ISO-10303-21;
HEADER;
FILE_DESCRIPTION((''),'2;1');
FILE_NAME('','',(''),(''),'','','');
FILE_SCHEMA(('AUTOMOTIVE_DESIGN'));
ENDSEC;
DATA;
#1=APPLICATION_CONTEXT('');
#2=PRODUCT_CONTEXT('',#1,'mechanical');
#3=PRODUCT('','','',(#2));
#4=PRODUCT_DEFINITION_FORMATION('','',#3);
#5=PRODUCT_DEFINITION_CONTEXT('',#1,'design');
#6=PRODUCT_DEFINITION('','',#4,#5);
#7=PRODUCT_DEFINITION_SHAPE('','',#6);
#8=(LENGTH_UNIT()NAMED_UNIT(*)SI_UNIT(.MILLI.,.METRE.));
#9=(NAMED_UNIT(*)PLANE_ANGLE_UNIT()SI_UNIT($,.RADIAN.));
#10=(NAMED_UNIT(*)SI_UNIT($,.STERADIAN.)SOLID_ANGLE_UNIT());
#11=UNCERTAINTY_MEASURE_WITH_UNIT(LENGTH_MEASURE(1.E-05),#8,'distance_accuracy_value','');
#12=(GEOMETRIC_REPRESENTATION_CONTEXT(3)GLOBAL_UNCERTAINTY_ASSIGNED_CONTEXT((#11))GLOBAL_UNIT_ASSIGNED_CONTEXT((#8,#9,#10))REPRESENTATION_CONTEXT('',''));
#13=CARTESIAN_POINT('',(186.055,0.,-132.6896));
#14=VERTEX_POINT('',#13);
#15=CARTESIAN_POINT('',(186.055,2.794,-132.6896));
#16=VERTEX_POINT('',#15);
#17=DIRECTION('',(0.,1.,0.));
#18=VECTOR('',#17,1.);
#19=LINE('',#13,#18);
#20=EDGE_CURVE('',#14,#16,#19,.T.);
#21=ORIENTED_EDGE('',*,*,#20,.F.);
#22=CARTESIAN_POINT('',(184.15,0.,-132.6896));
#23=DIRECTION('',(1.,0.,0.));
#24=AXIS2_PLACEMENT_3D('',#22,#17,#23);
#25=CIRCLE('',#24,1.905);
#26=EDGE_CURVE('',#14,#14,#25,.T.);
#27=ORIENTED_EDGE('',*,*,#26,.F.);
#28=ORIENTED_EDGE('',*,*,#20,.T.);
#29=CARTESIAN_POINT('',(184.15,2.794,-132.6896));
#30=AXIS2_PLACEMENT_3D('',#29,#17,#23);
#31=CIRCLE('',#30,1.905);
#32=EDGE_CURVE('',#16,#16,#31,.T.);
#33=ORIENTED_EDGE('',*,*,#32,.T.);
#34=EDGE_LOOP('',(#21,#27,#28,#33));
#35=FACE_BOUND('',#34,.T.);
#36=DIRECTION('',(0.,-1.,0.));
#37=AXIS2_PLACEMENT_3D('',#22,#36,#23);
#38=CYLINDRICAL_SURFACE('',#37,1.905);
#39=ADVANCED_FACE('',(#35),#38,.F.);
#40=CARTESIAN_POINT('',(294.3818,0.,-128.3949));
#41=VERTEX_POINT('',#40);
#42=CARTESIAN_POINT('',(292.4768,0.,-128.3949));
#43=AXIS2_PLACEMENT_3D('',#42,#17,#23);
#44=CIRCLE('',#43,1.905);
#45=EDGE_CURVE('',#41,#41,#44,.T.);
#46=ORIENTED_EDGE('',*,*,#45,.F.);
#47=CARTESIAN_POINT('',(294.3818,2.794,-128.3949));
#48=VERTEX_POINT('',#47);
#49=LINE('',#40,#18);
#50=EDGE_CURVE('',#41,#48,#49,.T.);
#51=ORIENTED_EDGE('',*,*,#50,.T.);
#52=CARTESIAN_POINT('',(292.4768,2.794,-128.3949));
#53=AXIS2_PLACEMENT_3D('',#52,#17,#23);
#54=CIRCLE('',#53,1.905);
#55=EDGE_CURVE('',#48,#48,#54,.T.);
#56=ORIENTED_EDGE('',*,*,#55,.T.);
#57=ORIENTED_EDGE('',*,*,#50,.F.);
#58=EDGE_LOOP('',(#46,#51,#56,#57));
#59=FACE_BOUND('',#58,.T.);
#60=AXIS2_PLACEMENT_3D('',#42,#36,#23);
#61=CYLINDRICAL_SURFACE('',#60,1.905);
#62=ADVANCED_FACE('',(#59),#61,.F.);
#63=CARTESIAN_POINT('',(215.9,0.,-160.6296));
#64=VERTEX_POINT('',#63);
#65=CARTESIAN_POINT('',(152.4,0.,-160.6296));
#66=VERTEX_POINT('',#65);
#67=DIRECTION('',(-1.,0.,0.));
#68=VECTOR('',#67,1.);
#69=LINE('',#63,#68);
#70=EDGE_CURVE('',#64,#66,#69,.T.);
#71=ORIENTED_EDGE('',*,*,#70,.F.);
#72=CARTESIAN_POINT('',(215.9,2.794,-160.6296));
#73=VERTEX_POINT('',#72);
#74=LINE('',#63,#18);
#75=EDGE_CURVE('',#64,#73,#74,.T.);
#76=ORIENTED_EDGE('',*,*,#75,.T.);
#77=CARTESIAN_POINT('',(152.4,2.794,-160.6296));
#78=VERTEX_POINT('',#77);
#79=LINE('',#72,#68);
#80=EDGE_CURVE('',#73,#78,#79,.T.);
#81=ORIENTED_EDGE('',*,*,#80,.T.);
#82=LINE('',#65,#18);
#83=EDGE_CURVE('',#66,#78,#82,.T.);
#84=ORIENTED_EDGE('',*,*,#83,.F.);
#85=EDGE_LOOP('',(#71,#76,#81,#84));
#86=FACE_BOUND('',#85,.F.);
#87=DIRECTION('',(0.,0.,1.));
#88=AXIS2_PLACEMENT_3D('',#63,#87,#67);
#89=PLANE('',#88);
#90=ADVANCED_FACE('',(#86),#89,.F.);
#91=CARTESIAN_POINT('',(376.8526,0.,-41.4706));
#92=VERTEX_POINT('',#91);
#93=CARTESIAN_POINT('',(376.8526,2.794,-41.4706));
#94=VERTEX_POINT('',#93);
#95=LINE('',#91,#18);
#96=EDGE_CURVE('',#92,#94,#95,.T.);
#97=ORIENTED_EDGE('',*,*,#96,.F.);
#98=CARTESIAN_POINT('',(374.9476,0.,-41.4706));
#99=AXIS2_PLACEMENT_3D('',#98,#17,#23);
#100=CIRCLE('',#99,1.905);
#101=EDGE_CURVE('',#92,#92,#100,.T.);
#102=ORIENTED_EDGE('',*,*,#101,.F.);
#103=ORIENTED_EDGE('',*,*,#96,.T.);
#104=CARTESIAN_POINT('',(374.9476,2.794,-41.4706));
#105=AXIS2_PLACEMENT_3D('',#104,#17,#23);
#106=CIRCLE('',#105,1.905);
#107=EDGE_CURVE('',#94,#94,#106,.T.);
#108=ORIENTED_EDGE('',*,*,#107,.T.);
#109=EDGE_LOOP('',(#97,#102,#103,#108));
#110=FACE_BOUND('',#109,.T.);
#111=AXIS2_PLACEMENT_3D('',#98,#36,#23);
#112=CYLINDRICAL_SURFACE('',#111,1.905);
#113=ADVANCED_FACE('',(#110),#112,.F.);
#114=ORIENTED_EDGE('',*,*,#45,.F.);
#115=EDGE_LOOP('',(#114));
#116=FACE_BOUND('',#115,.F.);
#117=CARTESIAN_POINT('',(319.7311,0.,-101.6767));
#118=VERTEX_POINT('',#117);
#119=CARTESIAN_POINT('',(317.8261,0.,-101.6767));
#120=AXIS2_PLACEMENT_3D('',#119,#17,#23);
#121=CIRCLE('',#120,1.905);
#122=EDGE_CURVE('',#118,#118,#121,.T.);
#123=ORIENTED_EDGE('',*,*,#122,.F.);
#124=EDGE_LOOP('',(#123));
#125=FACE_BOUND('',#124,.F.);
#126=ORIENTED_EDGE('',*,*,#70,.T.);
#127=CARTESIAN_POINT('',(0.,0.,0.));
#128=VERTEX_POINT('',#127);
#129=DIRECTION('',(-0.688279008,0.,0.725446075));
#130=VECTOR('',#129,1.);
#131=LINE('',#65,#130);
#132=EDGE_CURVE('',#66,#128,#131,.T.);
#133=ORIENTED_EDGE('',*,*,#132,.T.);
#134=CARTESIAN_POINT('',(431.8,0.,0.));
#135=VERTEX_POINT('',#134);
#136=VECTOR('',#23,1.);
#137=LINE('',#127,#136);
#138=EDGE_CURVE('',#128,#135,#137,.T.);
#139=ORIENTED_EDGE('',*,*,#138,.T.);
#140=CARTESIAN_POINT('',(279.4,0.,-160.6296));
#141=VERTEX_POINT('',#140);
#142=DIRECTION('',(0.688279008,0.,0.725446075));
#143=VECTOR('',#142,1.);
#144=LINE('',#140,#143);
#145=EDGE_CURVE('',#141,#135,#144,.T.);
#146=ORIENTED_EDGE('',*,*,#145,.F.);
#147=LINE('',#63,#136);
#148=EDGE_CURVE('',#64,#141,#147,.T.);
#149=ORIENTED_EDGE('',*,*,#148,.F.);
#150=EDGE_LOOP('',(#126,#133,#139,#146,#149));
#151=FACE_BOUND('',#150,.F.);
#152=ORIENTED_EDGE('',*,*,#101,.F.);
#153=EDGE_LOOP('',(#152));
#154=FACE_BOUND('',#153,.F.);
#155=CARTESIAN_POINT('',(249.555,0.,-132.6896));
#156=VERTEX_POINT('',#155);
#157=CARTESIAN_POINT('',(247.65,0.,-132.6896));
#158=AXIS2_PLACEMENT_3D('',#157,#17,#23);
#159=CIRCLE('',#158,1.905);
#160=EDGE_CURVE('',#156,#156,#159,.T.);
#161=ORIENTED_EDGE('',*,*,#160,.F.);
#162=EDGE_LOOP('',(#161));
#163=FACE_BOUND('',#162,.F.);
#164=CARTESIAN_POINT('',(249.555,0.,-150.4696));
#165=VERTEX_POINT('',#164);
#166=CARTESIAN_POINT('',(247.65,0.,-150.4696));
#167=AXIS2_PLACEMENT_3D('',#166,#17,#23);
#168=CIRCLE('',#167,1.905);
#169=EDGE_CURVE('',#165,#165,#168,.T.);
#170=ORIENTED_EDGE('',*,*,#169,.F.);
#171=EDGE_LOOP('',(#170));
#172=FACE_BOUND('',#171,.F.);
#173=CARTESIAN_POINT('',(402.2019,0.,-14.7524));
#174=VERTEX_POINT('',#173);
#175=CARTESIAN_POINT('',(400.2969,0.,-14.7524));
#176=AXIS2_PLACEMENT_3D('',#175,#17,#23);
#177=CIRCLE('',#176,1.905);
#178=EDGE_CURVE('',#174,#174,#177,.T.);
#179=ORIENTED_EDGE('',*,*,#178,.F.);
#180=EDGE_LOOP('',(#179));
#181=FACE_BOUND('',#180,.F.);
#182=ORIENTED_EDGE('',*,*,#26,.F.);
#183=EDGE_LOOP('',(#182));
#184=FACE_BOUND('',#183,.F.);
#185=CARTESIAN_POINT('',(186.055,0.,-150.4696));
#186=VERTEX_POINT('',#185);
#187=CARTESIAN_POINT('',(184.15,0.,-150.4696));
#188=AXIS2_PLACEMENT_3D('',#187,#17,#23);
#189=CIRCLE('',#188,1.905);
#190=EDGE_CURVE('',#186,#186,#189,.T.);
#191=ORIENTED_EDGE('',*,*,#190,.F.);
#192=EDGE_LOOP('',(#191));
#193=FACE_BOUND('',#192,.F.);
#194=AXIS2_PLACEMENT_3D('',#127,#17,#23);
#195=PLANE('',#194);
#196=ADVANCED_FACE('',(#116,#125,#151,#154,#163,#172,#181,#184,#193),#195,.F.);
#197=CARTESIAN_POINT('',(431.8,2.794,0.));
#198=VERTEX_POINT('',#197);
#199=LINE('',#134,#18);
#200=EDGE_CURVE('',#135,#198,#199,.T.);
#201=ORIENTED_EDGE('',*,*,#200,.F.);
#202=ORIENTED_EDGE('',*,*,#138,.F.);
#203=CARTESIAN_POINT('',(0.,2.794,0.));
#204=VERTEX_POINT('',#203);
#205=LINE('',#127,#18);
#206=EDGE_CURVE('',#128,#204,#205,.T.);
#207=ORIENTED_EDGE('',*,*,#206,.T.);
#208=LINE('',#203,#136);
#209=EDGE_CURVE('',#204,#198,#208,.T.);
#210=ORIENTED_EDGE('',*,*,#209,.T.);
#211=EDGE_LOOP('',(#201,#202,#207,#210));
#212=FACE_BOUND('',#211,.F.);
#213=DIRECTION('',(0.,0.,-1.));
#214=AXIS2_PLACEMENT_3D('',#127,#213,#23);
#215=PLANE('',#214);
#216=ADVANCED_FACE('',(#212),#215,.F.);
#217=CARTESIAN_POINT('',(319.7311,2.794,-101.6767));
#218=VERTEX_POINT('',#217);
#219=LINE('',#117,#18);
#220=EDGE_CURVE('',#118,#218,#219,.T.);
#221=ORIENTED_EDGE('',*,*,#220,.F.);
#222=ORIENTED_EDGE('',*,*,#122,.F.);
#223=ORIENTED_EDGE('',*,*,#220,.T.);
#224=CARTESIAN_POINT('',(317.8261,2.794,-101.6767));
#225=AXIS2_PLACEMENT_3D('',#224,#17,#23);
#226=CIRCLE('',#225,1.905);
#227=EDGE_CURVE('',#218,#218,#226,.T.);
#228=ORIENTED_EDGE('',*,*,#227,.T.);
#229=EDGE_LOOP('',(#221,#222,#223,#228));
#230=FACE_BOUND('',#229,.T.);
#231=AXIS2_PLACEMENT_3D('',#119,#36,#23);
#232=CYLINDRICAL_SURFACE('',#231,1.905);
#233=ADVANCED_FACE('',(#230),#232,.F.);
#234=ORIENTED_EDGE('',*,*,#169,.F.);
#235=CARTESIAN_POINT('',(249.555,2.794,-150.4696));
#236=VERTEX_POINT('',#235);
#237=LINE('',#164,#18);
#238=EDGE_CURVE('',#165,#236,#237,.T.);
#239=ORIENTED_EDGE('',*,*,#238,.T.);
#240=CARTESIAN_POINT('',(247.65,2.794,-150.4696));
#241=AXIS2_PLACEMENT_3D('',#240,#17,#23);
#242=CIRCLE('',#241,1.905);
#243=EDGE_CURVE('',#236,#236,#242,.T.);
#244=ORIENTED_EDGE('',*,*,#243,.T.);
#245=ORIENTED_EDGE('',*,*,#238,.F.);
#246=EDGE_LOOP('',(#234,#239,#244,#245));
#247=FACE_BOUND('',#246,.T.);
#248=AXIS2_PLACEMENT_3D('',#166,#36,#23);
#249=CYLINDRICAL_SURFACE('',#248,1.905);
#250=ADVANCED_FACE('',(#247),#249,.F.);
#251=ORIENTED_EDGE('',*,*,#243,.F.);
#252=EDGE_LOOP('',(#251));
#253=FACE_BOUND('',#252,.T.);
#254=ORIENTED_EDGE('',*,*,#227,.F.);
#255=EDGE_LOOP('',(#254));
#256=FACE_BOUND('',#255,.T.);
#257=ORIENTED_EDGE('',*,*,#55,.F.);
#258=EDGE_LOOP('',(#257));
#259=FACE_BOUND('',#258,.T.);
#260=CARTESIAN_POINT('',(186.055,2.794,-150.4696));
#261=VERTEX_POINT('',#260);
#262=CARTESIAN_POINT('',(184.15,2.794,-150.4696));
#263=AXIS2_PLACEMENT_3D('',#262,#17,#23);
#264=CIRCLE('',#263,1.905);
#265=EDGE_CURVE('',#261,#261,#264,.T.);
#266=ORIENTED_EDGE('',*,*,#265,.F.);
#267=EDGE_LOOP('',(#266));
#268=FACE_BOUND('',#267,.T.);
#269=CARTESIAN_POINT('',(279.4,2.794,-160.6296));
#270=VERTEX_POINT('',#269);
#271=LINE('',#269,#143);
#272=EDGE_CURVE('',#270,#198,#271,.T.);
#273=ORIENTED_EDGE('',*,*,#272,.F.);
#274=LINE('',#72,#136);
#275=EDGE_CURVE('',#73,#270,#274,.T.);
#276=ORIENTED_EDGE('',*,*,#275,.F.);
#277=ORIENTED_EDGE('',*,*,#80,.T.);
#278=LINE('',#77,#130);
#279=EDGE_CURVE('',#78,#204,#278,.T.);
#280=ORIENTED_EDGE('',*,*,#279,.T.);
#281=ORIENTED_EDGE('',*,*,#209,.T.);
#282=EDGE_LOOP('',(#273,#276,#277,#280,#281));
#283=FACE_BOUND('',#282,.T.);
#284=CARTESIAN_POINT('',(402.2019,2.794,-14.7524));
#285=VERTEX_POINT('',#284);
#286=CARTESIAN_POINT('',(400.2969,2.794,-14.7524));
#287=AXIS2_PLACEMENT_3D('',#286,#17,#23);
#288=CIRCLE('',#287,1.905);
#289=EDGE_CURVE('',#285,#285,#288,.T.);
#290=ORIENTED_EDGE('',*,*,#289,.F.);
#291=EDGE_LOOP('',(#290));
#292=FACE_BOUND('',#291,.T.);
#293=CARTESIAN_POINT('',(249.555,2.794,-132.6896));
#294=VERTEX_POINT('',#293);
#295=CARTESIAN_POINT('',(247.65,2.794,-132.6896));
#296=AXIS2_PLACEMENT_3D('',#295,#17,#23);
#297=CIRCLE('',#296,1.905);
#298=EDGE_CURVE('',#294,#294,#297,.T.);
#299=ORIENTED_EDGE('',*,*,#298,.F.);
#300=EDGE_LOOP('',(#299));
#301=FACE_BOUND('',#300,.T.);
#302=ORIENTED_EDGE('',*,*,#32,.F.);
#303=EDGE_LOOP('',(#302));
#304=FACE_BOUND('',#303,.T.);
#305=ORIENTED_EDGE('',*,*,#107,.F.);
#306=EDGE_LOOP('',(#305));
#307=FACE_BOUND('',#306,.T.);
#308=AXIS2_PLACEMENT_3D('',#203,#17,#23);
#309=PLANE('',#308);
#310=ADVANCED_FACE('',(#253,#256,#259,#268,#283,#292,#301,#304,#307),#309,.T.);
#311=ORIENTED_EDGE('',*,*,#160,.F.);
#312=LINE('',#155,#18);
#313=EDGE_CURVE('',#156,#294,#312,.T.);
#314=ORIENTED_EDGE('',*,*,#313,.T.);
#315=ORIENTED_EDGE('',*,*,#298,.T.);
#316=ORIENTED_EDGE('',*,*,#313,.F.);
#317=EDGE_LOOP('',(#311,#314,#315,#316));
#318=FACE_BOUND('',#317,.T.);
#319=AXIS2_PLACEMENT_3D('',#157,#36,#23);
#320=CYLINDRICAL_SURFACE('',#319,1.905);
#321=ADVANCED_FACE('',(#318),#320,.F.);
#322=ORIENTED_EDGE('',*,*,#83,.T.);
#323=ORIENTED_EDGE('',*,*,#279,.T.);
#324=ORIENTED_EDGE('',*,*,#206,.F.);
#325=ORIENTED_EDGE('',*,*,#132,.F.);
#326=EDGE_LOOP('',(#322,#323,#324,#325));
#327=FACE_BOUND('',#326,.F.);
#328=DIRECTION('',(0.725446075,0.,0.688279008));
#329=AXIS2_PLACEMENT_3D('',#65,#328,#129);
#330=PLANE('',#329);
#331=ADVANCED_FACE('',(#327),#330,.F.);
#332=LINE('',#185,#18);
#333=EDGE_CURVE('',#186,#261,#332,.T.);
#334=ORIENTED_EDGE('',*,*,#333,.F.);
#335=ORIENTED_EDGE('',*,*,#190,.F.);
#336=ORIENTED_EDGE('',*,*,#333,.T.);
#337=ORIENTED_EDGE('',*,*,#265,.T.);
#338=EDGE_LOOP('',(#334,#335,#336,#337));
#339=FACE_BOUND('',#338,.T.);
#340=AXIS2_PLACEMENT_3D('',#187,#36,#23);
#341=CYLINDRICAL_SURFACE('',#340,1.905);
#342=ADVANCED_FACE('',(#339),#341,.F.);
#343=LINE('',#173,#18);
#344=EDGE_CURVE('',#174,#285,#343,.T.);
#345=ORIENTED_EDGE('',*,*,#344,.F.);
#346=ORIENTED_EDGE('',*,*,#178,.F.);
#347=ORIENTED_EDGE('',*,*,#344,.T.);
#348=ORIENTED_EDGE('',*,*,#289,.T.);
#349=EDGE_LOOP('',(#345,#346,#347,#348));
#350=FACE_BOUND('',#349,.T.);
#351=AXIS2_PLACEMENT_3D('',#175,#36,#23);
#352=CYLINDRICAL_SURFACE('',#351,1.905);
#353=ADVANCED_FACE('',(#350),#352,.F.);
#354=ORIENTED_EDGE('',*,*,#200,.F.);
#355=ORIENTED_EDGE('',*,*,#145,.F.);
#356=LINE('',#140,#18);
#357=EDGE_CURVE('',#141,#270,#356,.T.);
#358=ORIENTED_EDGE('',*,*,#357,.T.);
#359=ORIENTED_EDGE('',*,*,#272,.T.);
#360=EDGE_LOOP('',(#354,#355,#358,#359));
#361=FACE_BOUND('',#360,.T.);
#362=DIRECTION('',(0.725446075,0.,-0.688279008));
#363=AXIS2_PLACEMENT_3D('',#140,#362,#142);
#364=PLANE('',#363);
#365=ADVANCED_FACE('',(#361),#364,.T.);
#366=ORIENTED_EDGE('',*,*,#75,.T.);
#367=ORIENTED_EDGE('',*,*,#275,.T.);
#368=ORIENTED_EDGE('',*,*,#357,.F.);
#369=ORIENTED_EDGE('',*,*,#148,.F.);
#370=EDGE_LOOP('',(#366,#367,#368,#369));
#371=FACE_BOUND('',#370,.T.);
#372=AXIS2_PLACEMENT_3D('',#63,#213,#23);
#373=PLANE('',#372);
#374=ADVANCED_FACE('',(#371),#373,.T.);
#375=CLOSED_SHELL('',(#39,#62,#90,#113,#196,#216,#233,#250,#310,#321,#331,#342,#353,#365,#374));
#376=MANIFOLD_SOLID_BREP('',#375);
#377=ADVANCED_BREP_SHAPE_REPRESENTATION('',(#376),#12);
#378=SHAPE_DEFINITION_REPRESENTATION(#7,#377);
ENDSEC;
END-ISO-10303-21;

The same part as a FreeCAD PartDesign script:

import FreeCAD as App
import Part
import Sketcher
from FreeCAD import Vector
Q = App.Units.Quantity

doc = App.newDocument("Part")
body = doc.addObject("PartDesign::Body", "Body")

# Sketch on XZ plane
sketch1 = body.newObject("Sketcher::SketchObject", "Sketch")
sketch1.AttachmentSupport = (doc.getObject("XZ_Plane"), [""])
sketch1.MapMode = "FlatFace"
sketch1.addGeometry([
    Part.LineSegment(Vector(152.4, -160.6296, 0), Vector(0, 0, 0)),  # 0
    Part.LineSegment(Vector(0, 0, 0), Vector(431.8, 0, 0)),  # 1
    Part.LineSegment(Vector(431.8, 0, 0), Vector(279.4, -160.6296, 0)),  # 2
    Part.LineSegment(Vector(279.4, -160.6296, 0), Vector(152.4, -160.6296, 0)),  # 3
    Part.Circle(Vector(400.2969, -14.7524, 0), Vector(0, 0, 1), 1.905),  # 4
    Part.Circle(Vector(374.9476, -41.4706, 0), Vector(0, 0, 1), 1.905),  # 5
    Part.Circle(Vector(184.15, -132.6896, 0), Vector(0, 0, 1), 1.905),  # 6
    Part.Circle(Vector(184.15, -150.4696, 0), Vector(0, 0, 1), 1.905),  # 7
    Part.Circle(Vector(317.8261, -101.6767, 0), Vector(0, 0, 1), 1.905),  # 8
    Part.Circle(Vector(247.65, -132.6896, 0), Vector(0, 0, 1), 1.905),  # 9
    Part.Circle(Vector(292.4768, -128.3949, 0), Vector(0, 0, 1), 1.905),  # 10
    Part.Circle(Vector(247.65, -150.4696, 0), Vector(0, 0, 1), 1.905),  # 11
], False)
sketch1.addConstraint([
    Sketcher.Constraint("Coincident", 0, 2, 1, 1),
    Sketcher.Constraint("Coincident", 1, 2, 2, 1),
    Sketcher.Constraint("Coincident", 2, 2, 3, 1),
    Sketcher.Constraint("Coincident", 3, 2, 0, 1),
    Sketcher.Constraint("Horizontal", 1),
    Sketcher.Constraint("Horizontal", 3),
    Sketcher.Constraint("Coincident", 0, 2, -1, 1),
    Sketcher.Constraint("Equal", 4, 5),
    Sketcher.Constraint("Equal", 5, 6),
    Sketcher.Constraint("Equal", 6, 7),
    Sketcher.Constraint("Equal", 7, 8),
    Sketcher.Constraint("Equal", 8, 9),
    Sketcher.Constraint("Equal", 9, 10),
    Sketcher.Constraint("Equal", 10, 11),
    Sketcher.Constraint("Horizontal", 6, 3, 9, 3),
    Sketcher.Constraint("Horizontal", 7, 3, 11, 3),
    Sketcher.Constraint("Vertical", 6, 3, 7, 3),
    Sketcher.Constraint("Vertical", 9, 3, 11, 3),
    Sketcher.Constraint("Equal", 0, 2),
    Sketcher.Constraint("DistanceX", 1, 1, 1, 2, Q("17 in")),
    Sketcher.Constraint("DistanceX", 6, 3, 9, 3, Q("2.5 in")),
    Sketcher.Constraint("Diameter", 4, Q("0.15 in")),
    Sketcher.Constraint("DistanceX", 3, 2, 3, 1, Q("5 in")),
    Sketcher.Constraint("DistanceY", 7, 3, 6, 3, Q("0.7 in")),
    Sketcher.Constraint("DistanceY", 2, 2, 11, 3, Q("0.4 in")),
    Sketcher.Constraint("DistanceX", -1, 1, 6, 3, Q("7.25 in")),
    Sketcher.Constraint("DistanceY", 6, 3, -1, 1, Q("5.224 in")),
    Sketcher.Constraint("DistanceX", 5, 3, 4, 3, Q("0.998 in")),
    Sketcher.Constraint("DistanceX", 10, 3, 8, 3, Q("0.998 in")),
    Sketcher.Constraint("DistanceY", 4, 3, -1, 1, Q("0.5808 in")),
    Sketcher.Constraint("DistanceY", 5, 3, -1, 1, Q("1.6327 in")),
    Sketcher.Constraint("DistanceY", 10, 3, 8, 3, Q("1.0519 in")),
    Sketcher.Constraint("DistanceX", -1, 1, 4, 3, Q("400.297 mm")),
    Sketcher.Constraint("DistanceX", -1, 1, 8, 3, Q("317.826 mm")),
    Sketcher.Constraint("DistanceY", 8, 3, -1, 1, Q("101.6767 mm")),
])
pad1 = body.newObject("PartDesign::Pad", "Pad")
pad1.Profile = sketch1
pad1.Length = Q("0.11 in")
pad1.Reversed = True

doc.recompute()
